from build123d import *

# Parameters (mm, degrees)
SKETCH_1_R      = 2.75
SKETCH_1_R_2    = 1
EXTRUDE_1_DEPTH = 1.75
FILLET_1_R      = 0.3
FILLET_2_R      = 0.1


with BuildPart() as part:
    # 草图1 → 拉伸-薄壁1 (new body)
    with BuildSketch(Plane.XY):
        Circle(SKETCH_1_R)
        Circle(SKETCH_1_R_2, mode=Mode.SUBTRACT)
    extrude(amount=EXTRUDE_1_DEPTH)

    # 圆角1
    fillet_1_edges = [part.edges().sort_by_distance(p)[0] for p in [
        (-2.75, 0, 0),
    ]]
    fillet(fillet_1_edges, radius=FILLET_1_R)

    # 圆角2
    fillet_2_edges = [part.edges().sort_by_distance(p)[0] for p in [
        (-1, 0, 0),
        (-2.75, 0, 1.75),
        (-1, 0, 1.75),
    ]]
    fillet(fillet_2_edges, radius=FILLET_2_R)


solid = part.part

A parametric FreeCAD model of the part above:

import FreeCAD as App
import Part
import Sketcher


def edges_at(feature, points):
    """Names of the edges that pass closest to the given points."""
    edges = feature.Shape.Edges
    near = lambda p: min(range(len(edges)), key=lambda i: edges[i].distToShape(Part.Vertex(*p))[0])
    return sorted({f"Edge{near(p) + 1}" for p in points})

doc = App.newDocument("Part")
body = doc.addObject("PartDesign::Body", "Body")

sketch1 = body.newObject("Sketcher::SketchObject", "Sketch")
sketch1.AttachmentSupport = (doc.getObject("XY_Plane"), [""])
sketch1.MapMode = "FlatFace"
sketch1.addGeometry(Part.Circle(App.Vector(0, 0, 0), App.Vector(0, 0, 1), 2.8), False)
sketch1.addGeometry(Part.Circle(App.Vector(0, 0, 0), App.Vector(0, 0, 1), 1), False)
sketch1.addConstraint(Sketcher.Constraint("Coincident", 0, 3, -1, 1))
sketch1.addConstraint(Sketcher.Constraint("Coincident", 1, 3, -1, 1))
sketch1.addConstraint(Sketcher.Constraint("Diameter", 1, 2.0))
sketch1.addConstraint(Sketcher.Constraint("Diameter", 0, 5.5))
pad1 = body.newObject("PartDesign::Pad", "Pad")
pad1.Profile = sketch1
pad1.Length = 1.75
doc.recompute()

fillet = body.newObject("PartDesign::Fillet", "Fillet")
fillet.Base = (pad1, edges_at(pad1, [(-2.75, 0, 0)]))
fillet.Radius = 0.3
doc.recompute()

fillet2 = body.newObject("PartDesign::Fillet", "Fillet001")
fillet2.Base = (fillet, edges_at(fillet, [(-1, 0, 0), (-2.75, 0, 1.75), (-1, 0, 1.75)]))
fillet2.Radius = 0.1

doc.recompute()
